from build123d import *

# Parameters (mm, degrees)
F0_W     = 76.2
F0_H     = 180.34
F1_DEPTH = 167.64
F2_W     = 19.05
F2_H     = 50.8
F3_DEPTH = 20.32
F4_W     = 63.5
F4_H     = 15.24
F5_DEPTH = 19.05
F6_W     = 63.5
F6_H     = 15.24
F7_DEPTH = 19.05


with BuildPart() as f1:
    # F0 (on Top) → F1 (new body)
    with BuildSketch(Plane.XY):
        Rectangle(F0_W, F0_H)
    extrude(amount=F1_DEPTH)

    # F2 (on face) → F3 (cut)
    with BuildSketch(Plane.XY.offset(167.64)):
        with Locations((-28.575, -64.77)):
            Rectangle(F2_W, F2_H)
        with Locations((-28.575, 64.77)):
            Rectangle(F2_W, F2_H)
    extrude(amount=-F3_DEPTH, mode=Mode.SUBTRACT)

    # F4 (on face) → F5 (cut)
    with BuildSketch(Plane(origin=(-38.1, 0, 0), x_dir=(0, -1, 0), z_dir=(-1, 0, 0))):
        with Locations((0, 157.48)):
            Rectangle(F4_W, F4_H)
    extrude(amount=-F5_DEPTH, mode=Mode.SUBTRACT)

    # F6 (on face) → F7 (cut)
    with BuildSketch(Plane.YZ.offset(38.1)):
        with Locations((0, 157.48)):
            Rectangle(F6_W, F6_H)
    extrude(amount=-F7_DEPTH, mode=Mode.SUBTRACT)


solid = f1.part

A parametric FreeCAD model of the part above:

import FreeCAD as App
import Part
import Sketcher
from FreeCAD import Vector
Q = App.Units.Quantity

doc = App.newDocument("Part")
body = doc.addObject("PartDesign::Body", "Body")

# Sketch on XY plane
sketch1 = body.newObject("Sketcher::SketchObject", "Sketch")
sketch1.AttachmentSupport = (doc.getObject("XY_Plane"), [""])
sketch1.MapMode = "FlatFace"
sketch1.addGeometry(Part.LineSegment(Vector(-38, 90, 0), Vector(-38, -90, 0)), False)
sketch1.addGeometry(Part.LineSegment(Vector(-38, -90, 0), Vector(38, -90, 0)), False)
sketch1.addGeometry(Part.LineSegment(Vector(38, -90, 0), Vector(38, 90, 0)), False)
sketch1.addGeometry(Part.LineSegment(Vector(38, 90, 0), Vector(-38, 90, 0)), False)
sketch1.addConstraint(Sketcher.Constraint("Coincident", 0, 2, 1, 1))
sketch1.addConstraint(Sketcher.Constraint("Coincident", 1, 2, 2, 1))
sketch1.addConstraint(Sketcher.Constraint("Coincident", 2, 2, 3, 1))
sketch1.addConstraint(Sketcher.Constraint("Coincident", 3, 2, 0, 1))
sketch1.addConstraint(Sketcher.Constraint("Vertical", 0))
sketch1.addConstraint(Sketcher.Constraint("Horizontal", 1))
sketch1.addConstraint(Sketcher.Constraint("Vertical", 2))
sketch1.addConstraint(Sketcher.Constraint("Horizontal", 3))
sketch1.addConstraint(Sketcher.Constraint("Symmetric", 0, 2, 2, 2, -1, 1))
sketch1.addConstraint(Sketcher.Constraint("DistanceX", 1, 1, 1, 2, Q("3 in")))
sketch1.addConstraint(Sketcher.Constraint("DistanceY", 0, 2, 0, 1, Q("7.1 in")))
pad1 = body.newObject("PartDesign::Pad", "Pad")
pad1.Profile = sketch1
pad1.Length = Q("6.6 in")

# Sketch on XY plane
sketch2 = body.newObject("Sketcher::SketchObject", "Sketch001")
sketch2.AttachmentSupport = (doc.getObject("XY_Plane"), [""])
sketch2.MapMode = "FlatFace"
sketch2.AttachmentOffset = App.Placement(Vector(0, 0, 6.6 * 25.4), App.Rotation())
sketch2.addGeometry(Part.LineSegment(Vector(-38, -39, 0), Vector(-38, -90, 0)), False)
sketch2.addGeometry(Part.LineSegment(Vector(-38, -90, 0), Vector(-19, -90, 0)), False)
sketch2.addGeometry(Part.LineSegment(Vector(-19, -90, 0), Vector(-19, -39, 0)), False)
sketch2.addGeometry(Part.LineSegment(Vector(-19, -39, 0), Vector(-38, -39, 0)), False)
sketch2.addGeometry(Part.LineSegment(Vector(-38, 90, 0), Vector(-38, 39, 0)), False)
sketch2.addGeometry(Part.LineSegment(Vector(-38, 39, 0), Vector(-19, 39, 0)), False)
sketch2.addGeometry(Part.LineSegment(Vector(-19, 39, 0), Vector(-19, 90, 0)), False)
sketch2.addGeometry(Part.LineSegment(Vector(-19, 90, 0), Vector(-38, 90, 0)), False)
sketch2.addConstraint(Sketcher.Constraint("Coincident", 0, 2, 1, 1))
sketch2.addConstraint(Sketcher.Constraint("Coincident", 1, 2, 2, 1))
sketch2.addConstraint(Sketcher.Constraint("Coincident", 2, 2, 3, 1))
sketch2.addConstraint(Sketcher.Constraint("Coincident", 3, 2, 0, 1))
sketch2.addConstraint(Sketcher.Constraint("Coincident", 4, 2, 5, 1))
sketch2.addConstraint(Sketcher.Constraint("Coincident", 5, 2, 6, 1))
sketch2.addConstraint(Sketcher.Constraint("Coincident", 6, 2, 7, 1))
sketch2.addConstraint(Sketcher.Constraint("Coincident", 7, 2, 4, 1))
sketch2.addConstraint(Sketcher.Constraint("Vertical", 0))
sketch2.addConstraint(Sketcher.Constraint("Horizontal", 1))
sketch2.addConstraint(Sketcher.Constraint("Vertical", 2))
sketch2.addConstraint(Sketcher.Constraint("Horizontal", 3))
sketch2.addConstraint(Sketcher.Constraint("Vertical", 4))
sketch2.addConstraint(Sketcher.Constraint("Horizontal", 5))
sketch2.addConstraint(Sketcher.Constraint("Vertical", 6))
sketch2.addConstraint(Sketcher.Constraint("Horizontal", 7))
sketch2.addConstraint(Sketcher.Constraint("Symmetric", 3, 2, 4, 2, -1))
sketch2.addConstraint(Sketcher.Constraint("Symmetric", 1, 2, 6, 2, -1))
sketch2.addConstraint(Sketcher.Constraint("DistanceY", 0, 2, 0, 1, Q("2 in")))
sketch2.addConstraint(Sketcher.Constraint("DistanceX", 1, 1, 1, 2, Q("0.75 in")))
sketch2.addConstraint(Sketcher.Constraint("DistanceX", 0, 2, -1, 1, Q("1.5 in")))
sketch2.addConstraint(Sketcher.Constraint("DistanceY", 3, 2, 4, 2, Q("3.1 in")))
pocket1 = body.newObject("PartDesign::Pocket", "Pocket")
pocket1.Profile = sketch2
pocket1.Length = Q("0.8 in")

# Sketch on YZ plane
sketch3 = body.newObject("Sketcher::SketchObject", "Sketch002")
sketch3.AttachmentSupport = (doc.getObject("YZ_Plane"), [""])
sketch3.MapMode = "FlatFace"
sketch3.AttachmentOffset = App.Placement(Vector(0, 0, -1.5 * 25.4), App.Rotation())
sketch3.addGeometry(Part.LineSegment(Vector(32, 165, 0), Vector(32, 150, 0)), False)
sketch3.addGeometry(Part.LineSegment(Vector(32, 150, 0), Vector(-32, 150, 0)), False)
sketch3.addGeometry(Part.LineSegment(Vector(-32, 150, 0), Vector(-32, 165, 0)), False)
sketch3.addGeometry(Part.LineSegment(Vector(-32, 165, 0), Vector(32, 165, 0)), False)
sketch3.addConstraint(Sketcher.Constraint("Coincident", 0, 2, 1, 1))
sketch3.addConstraint(Sketcher.Constraint("Coincident", 1, 2, 2, 1))
sketch3.addConstraint(Sketcher.Constraint("Coincident", 2, 2, 3, 1))
sketch3.addConstraint(Sketcher.Constraint("Coincident", 3, 2, 0, 1))
sketch3.addConstraint(Sketcher.Constraint("Vertical", 0))
sketch3.addConstraint(Sketcher.Constraint("Horizontal", 1))
sketch3.addConstraint(Sketcher.Constraint("Vertical", 2))
sketch3.addConstraint(Sketcher.Constraint("Horizontal", 3))
sketch3.addConstraint(Sketcher.Constraint("DistanceX", 1, 2, 1, 1, Q("2.5 in")))
sketch3.addConstraint(Sketcher.Constraint("DistanceY", 0, 2, 0, 1, Q("0.6 in")))
sketch3.addConstraint(Sketcher.Constraint("DistanceY", -1, 1, 0, 2, Q("5.9 in")))
sketch3.addConstraint(Sketcher.Constraint("DistanceX", -1, 1, 0, 2, Q("1.25 in")))
pocket2 = body.newObject("PartDesign::Pocket", "Pocket001")
pocket2.Profile = sketch3
pocket2.Length = Q("0.75 in")
pocket2.Reversed = True

# Sketch on YZ plane
sketch4 = body.newObject("Sketcher::SketchObject", "Sketch003")
sketch4.AttachmentSupport = (doc.getObject("YZ_Plane"), [""])
sketch4.MapMode = "FlatFace"
sketch4.AttachmentOffset = App.Placement(Vector(0, 0, 1.5 * 25.4), App.Rotation())
sketch4.addGeometry(Part.LineSegment(Vector(-32, 165, 0), Vector(-32, 150, 0)), False)
sketch4.addGeometry(Part.LineSegment(Vector(-32, 150, 0), Vector(32, 150, 0)), False)
sketch4.addGeometry(Part.LineSegment(Vector(32, 150, 0), Vector(32, 165, 0)), False)
sketch4.addGeometry(Part.LineSegment(Vector(32, 165, 0), Vector(-32, 165, 0)), False)
sketch4.addConstraint(Sketcher.Constraint("Coincident", 0, 2, 1, 1))
sketch4.addConstraint(Sketcher.Constraint("Coincident", 1, 2, 2, 1))
sketch4.addConstraint(Sketcher.Constraint("Coincident", 2, 2, 3, 1))
sketch4.addConstraint(Sketcher.Constraint("Coincident", 3, 2, 0, 1))
sketch4.addConstraint(Sketcher.Constraint("Vertical", 0))
sketch4.addConstraint(Sketcher.Constraint("Horizontal", 1))
sketch4.addConstraint(Sketcher.Constraint("Vertical", 2))
sketch4.addConstraint(Sketcher.Constraint("Horizontal", 3))
sketch4.addConstraint(Sketcher.Constraint("DistanceX", 1, 1, 1, 2, Q("2.5 in")))
sketch4.addConstraint(Sketcher.Constraint("DistanceY", 0, 2, 0, 1, Q("0.6 in")))
sketch4.addConstraint(Sketcher.Constraint("DistanceY", -1, 1, 0, 2, Q("5.9 in")))
sketch4.addConstraint(Sketcher.Constraint("DistanceX", 0, 2, -1, 1, Q("1.25 in")))
pocket3 = body.newObject("PartDesign::Pocket", "Pocket002")
pocket3.Profile = sketch4
pocket3.Length = Q("0.75 in")

doc.recompute()
